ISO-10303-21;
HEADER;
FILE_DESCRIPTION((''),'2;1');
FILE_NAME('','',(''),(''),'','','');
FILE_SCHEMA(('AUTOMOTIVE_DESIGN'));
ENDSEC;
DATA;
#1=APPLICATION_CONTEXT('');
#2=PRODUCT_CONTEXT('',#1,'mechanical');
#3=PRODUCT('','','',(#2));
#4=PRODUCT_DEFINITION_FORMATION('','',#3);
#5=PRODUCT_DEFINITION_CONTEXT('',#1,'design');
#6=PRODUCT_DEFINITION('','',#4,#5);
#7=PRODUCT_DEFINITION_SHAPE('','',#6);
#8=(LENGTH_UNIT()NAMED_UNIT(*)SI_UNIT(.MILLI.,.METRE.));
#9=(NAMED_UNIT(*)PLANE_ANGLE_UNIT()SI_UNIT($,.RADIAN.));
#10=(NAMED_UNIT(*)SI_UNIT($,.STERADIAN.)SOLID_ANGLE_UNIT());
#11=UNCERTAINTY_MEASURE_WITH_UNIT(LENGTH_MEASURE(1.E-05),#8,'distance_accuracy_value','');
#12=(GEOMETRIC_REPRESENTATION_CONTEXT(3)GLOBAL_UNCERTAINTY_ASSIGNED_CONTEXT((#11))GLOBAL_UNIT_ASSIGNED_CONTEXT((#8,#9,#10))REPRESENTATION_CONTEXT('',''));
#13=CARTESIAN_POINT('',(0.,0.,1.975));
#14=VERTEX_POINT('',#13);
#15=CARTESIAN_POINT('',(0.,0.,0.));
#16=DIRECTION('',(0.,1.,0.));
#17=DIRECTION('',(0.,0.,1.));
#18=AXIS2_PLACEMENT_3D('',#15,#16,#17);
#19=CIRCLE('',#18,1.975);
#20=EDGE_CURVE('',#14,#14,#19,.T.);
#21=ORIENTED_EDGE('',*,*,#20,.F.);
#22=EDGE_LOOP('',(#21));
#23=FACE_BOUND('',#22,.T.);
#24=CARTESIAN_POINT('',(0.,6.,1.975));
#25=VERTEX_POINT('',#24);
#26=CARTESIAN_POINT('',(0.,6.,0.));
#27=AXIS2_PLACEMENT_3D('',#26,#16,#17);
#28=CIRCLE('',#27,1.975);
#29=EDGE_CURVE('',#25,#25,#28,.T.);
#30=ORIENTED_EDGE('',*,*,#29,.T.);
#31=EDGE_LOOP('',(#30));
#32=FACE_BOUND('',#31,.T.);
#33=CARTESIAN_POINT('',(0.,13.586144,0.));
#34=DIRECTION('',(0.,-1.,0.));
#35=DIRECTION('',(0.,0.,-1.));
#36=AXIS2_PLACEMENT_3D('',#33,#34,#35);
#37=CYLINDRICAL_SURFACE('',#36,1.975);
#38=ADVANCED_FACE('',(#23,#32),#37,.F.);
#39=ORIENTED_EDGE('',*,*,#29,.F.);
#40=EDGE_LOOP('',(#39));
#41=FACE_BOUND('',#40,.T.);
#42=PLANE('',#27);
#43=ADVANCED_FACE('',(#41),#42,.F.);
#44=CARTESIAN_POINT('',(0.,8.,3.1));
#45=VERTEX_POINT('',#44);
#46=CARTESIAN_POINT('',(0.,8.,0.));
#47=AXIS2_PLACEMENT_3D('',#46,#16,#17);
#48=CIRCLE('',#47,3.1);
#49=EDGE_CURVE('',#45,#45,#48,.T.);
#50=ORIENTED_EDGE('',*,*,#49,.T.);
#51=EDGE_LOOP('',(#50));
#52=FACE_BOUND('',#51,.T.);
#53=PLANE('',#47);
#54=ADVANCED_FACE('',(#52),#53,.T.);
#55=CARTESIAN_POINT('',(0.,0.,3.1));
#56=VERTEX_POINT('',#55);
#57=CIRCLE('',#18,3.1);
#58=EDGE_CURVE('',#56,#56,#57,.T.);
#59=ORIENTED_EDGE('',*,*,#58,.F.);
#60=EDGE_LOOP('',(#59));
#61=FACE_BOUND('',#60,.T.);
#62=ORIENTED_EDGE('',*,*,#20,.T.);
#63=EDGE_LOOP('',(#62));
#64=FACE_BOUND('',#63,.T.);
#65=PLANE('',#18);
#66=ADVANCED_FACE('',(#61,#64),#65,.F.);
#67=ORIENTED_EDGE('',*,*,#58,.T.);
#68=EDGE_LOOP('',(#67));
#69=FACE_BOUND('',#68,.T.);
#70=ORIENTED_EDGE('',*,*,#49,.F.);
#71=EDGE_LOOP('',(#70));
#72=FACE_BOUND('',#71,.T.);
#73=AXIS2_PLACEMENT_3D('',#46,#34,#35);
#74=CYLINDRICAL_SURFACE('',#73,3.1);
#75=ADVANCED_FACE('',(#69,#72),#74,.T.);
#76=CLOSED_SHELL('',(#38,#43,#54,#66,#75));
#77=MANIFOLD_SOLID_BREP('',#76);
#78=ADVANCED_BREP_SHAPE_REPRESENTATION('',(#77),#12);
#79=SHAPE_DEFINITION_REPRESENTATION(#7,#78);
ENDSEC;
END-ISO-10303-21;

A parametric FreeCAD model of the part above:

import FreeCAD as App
import Part
import Sketcher
from FreeCAD import Vector

doc = App.newDocument("Part")
body = doc.addObject("PartDesign::Body", "Body")

# Sketch on XZ plane
sketch1 = body.newObject("Sketcher::SketchObject", "Sketch")
sketch1.AttachmentSupport = (doc.getObject("XZ_Plane"), [""])
sketch1.MapMode = "FlatFace"
sketch1.addGeometry(Part.Circle(Vector(0, 0, 0), Vector(0, 0, 1), 3.1), False)
sketch1.addConstraint([
    Sketcher.Constraint("Coincident", 0, 3, -1, 1),
    Sketcher.Constraint("Diameter", 0, 6.2),
])
pad1 = body.newObject("PartDesign::Pad", "Pad")
pad1.Profile = sketch1
pad1.Length = 8
pad1.Reversed = True

# Sketch on XZ plane
sketch2 = body.newObject("Sketcher::SketchObject", "Sketch001")
sketch2.AttachmentSupport = (doc.getObject("XZ_Plane"), [""])
sketch2.MapMode = "FlatFace"
sketch2.addGeometry(Part.Circle(Vector(0, 0, 0), Vector(0, 0, 1), 1.975), False)
sketch2.addConstraint([
    Sketcher.Constraint("Coincident", 0, 3, -1, 1),
    Sketcher.Constraint("Diameter", 0, 3.95),
])
pocket1 = body.newObject("PartDesign::Pocket", "Pocket")
pocket1.Profile = sketch2
pocket1.Length = 6

doc.recompute()
